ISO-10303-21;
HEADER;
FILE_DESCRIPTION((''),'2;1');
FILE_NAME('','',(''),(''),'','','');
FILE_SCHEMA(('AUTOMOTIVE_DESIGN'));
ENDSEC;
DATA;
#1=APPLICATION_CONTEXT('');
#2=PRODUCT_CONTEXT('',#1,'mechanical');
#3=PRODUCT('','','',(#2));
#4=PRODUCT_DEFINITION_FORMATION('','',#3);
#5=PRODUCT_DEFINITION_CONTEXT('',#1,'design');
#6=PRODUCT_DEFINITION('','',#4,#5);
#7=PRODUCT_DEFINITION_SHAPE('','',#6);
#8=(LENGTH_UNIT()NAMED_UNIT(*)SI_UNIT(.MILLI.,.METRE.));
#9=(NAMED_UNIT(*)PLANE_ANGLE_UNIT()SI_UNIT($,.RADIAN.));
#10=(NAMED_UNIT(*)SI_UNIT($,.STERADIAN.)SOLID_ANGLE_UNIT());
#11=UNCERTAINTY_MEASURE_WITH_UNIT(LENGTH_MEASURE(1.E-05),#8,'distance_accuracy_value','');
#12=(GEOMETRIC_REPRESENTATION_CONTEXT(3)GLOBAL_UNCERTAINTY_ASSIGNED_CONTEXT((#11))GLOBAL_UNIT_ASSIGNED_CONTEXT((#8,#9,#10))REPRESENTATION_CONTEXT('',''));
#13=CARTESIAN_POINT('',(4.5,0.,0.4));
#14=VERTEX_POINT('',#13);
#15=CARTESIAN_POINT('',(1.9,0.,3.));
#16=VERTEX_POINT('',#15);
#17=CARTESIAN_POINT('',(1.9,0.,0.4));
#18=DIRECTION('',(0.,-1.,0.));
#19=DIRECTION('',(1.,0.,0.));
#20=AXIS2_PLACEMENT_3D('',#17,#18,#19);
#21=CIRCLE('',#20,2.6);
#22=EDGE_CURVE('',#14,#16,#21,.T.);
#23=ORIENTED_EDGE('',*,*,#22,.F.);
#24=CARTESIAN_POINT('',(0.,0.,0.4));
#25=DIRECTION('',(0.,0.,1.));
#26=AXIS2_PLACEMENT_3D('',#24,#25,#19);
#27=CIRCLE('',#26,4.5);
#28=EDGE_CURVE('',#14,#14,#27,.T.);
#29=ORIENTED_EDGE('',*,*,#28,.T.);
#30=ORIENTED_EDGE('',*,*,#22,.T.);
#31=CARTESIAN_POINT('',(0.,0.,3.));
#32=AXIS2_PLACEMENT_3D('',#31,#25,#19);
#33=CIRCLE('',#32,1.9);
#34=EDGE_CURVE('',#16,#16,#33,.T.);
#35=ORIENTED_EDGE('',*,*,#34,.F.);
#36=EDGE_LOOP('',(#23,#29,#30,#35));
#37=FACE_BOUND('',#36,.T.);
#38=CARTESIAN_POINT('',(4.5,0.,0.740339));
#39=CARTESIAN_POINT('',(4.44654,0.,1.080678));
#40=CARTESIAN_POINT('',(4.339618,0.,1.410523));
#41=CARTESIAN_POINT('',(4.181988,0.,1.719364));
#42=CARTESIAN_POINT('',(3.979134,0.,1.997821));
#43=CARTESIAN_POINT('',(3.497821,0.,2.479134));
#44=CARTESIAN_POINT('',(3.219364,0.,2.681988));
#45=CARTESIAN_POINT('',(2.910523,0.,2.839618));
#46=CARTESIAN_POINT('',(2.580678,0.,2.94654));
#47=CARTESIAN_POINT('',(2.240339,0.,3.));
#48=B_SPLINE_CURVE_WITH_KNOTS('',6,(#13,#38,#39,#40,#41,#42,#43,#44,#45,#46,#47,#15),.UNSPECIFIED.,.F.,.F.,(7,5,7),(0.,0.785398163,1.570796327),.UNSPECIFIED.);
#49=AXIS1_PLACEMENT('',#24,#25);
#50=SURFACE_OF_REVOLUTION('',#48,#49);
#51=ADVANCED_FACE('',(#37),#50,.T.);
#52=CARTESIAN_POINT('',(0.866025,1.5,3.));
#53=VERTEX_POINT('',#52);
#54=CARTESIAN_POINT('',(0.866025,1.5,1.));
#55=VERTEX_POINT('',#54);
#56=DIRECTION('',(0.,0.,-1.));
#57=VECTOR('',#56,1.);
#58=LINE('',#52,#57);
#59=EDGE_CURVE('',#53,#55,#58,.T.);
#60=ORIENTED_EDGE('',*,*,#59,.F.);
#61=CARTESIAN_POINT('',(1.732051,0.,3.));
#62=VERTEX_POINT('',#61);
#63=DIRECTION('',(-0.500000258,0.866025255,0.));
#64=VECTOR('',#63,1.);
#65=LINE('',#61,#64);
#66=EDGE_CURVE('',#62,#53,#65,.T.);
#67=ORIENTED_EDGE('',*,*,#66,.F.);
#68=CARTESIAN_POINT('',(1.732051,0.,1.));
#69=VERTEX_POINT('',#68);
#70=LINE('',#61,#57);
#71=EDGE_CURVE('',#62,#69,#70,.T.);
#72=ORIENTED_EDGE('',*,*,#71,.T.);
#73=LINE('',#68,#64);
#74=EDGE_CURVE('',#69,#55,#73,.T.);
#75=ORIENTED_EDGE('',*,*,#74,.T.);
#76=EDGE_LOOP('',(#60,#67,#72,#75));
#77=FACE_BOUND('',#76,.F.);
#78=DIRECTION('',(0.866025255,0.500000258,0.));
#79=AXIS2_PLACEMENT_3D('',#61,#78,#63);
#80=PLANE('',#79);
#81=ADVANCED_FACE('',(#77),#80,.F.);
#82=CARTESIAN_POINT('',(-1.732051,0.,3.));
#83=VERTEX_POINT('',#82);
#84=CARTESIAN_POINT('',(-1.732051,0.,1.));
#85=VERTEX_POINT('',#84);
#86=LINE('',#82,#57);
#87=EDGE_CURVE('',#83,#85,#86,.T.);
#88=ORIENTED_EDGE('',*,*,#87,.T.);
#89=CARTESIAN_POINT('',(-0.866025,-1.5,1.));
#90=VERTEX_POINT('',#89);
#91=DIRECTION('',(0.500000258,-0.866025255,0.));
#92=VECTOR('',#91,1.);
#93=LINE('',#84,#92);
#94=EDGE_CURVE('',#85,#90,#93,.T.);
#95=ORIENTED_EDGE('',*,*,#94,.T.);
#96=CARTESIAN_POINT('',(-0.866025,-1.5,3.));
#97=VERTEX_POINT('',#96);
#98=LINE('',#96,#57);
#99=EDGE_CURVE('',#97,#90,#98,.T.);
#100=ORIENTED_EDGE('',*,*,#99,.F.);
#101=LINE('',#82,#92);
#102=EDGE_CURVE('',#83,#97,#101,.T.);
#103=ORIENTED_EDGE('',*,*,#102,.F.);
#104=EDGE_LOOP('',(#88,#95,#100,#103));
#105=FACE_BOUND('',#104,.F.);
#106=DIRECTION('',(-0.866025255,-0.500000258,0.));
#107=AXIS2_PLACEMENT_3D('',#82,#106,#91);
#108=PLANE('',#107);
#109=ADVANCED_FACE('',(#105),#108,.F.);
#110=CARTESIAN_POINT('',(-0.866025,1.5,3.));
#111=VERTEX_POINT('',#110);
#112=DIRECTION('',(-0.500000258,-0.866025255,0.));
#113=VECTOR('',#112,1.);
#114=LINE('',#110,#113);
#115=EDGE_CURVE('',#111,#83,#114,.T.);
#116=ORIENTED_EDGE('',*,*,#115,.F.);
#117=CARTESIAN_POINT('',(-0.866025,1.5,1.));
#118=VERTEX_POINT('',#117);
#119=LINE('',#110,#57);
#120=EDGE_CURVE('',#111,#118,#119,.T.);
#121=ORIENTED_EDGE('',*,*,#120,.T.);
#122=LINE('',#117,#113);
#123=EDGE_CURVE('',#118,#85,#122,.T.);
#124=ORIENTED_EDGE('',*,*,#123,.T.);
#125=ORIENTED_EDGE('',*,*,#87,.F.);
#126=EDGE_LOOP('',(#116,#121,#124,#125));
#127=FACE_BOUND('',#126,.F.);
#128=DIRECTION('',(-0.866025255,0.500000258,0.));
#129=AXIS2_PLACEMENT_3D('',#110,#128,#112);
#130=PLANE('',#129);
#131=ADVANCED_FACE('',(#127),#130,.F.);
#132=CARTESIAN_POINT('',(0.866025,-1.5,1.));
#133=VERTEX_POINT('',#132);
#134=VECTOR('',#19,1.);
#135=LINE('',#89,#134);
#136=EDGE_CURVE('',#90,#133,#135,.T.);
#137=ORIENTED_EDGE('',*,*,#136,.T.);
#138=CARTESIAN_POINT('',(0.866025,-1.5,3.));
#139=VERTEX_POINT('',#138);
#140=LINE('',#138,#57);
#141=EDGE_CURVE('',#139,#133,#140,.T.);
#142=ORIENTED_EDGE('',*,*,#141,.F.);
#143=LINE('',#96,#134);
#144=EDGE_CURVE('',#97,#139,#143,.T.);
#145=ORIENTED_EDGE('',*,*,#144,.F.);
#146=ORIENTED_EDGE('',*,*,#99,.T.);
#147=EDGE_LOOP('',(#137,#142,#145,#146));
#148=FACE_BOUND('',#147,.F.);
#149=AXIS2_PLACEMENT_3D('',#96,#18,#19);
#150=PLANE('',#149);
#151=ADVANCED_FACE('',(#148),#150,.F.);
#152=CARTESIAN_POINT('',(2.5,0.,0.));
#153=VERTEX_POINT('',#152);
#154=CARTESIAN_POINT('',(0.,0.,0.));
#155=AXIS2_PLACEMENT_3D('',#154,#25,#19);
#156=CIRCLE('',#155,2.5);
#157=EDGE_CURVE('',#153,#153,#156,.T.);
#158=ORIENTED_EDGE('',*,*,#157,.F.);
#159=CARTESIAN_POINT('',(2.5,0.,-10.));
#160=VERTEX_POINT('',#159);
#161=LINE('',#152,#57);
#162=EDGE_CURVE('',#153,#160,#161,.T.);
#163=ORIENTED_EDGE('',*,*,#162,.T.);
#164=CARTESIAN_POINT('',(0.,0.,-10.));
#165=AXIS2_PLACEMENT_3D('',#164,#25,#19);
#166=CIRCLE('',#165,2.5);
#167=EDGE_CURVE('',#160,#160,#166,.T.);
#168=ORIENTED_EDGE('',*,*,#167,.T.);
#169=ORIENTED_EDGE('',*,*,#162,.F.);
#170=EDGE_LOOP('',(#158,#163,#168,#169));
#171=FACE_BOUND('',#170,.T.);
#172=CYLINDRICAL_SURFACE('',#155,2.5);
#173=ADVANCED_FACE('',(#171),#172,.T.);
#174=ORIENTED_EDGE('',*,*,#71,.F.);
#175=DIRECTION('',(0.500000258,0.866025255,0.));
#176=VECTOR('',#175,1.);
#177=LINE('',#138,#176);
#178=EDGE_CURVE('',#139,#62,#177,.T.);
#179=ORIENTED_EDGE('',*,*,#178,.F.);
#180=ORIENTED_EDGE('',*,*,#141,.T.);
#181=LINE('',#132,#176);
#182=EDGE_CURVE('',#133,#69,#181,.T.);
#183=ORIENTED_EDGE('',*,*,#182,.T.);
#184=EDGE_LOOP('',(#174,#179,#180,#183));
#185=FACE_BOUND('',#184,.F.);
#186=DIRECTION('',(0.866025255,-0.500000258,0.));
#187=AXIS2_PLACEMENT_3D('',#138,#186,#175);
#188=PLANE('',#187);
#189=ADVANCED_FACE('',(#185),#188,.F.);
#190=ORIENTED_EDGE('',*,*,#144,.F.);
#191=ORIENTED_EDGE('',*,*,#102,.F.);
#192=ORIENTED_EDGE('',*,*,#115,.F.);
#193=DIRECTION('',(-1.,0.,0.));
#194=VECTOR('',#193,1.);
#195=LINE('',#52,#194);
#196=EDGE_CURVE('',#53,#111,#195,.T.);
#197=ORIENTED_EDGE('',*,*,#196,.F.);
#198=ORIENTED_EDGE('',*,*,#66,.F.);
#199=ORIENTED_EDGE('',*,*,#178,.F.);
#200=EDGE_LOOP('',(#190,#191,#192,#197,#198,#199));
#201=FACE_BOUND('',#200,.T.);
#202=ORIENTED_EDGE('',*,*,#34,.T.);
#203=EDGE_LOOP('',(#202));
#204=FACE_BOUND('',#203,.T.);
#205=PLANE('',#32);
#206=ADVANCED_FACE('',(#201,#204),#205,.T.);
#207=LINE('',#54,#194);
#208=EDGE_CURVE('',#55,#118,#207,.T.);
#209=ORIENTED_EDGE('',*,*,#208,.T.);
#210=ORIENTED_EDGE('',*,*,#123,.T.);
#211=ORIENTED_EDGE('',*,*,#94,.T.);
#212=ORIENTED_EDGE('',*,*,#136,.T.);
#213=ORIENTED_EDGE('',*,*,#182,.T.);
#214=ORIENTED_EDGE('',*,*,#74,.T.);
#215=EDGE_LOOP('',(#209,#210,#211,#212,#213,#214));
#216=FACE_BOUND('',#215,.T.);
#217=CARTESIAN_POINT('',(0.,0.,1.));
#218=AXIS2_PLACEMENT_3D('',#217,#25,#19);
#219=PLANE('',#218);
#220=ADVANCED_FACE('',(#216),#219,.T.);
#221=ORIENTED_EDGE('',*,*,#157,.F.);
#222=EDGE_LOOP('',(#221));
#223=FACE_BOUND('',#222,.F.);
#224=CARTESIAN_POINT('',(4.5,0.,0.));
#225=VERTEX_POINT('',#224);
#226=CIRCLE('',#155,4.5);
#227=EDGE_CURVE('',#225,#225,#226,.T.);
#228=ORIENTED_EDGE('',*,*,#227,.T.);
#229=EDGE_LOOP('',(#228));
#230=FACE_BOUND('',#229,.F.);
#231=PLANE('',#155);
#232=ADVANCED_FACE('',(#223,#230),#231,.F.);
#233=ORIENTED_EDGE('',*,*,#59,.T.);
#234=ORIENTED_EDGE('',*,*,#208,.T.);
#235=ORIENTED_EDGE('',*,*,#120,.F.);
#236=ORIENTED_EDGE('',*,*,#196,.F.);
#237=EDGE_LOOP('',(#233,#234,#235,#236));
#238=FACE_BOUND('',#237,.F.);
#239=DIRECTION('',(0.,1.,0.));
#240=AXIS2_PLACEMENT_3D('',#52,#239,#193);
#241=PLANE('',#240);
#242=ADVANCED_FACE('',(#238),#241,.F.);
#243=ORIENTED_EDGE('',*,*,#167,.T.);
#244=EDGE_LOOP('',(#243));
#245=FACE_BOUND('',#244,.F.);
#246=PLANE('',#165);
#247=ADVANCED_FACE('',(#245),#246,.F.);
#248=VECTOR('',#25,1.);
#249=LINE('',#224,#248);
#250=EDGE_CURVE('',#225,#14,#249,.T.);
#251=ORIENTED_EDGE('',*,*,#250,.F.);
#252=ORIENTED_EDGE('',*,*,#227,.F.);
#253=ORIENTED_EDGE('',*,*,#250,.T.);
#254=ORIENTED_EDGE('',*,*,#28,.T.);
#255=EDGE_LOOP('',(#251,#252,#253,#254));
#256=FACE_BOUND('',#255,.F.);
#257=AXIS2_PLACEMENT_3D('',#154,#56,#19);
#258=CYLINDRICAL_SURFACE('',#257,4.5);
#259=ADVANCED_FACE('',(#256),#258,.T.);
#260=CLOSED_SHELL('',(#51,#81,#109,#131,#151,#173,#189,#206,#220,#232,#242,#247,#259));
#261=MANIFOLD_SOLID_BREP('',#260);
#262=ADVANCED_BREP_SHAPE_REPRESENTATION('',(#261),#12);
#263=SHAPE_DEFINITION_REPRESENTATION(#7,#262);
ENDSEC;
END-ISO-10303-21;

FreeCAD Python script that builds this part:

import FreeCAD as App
import Part
import Sketcher
Q = App.Units.Quantity


def edges_at(feature, points):
    """Names of the edges that pass closest to the given points."""
    edges = feature.Shape.Edges
    near = lambda p: min(range(len(edges)), key=lambda i: edges[i].distToShape(Part.Vertex(*p))[0])
    return sorted({f"Edge{near(p) + 1}" for p in points})

doc = App.newDocument("Part")
body = doc.addObject("PartDesign::Body", "Body")

sketch1 = doc.addObject("Sketcher::SketchObject", "Sketch")
body.addObject(sketch1)
sketch1.AttachmentSupport = (doc.XY_Plane, [""])
sketch1.MapMode = "FlatFace"
sketch1.addGeometry(Part.Circle(App.Vector(0, 0, 0), App.Vector(0, 0, 1), 2.5), False)
sketch1.addConstraint([
    Sketcher.Constraint("Coincident", 0, 3, -1, 1),
    Sketcher.Constraint("Diameter", 0, Q("5 mm")),
])
pad1 = doc.addObject("PartDesign::Pad", "Pad")
body.addObject(pad1)
pad1.Profile = sketch1
pad1.Length = 10
pad1.Reversed = True

sketch2 = doc.addObject("Sketcher::SketchObject", "Sketch001")
body.addObject(sketch2)
sketch2.AttachmentSupport = (doc.XY_Plane, [""])
sketch2.MapMode = "FlatFace"
sketch2.addGeometry(Part.Circle(App.Vector(0, 0, 0), App.Vector(0, 0, 1), 4.5), False)
sketch2.addConstraint([
    Sketcher.Constraint("Coincident", 0, 3, -1, 1),
    Sketcher.Constraint("Diameter", 0, Q("9 mm")),
])
pad2 = doc.addObject("PartDesign::Pad", "Pad001")
body.addObject(pad2)
pad2.Profile = sketch2
pad2.Length = 3
doc.recompute()

fillet = doc.addObject("PartDesign::Fillet", "Fillet")
body.addObject(fillet)
fillet.Base = (pad2, edges_at(pad2, [(-4.5, 0, 3)]))
fillet.Radius = 2.6

sketch3 = doc.addObject("Sketcher::SketchObject", "Sketch002")
body.addObject(sketch3)
sketch3.AttachmentSupport = (doc.XY_Plane, [""])
sketch3.MapMode = "FlatFace"
sketch3.AttachmentOffset = App.Placement(App.Vector(0, 0, 3), App.Rotation())
sketch3.addGeometry([
    Part.LineSegment(App.Vector(-0.9, -1.5, 0), App.Vector(0.9, -1.5, 0)),
    Part.LineSegment(App.Vector(0.9, -1.5, 0), App.Vector(1.7, 0, 0)),
    Part.LineSegment(App.Vector(1.7, 0, 0), App.Vector(0.9, 1.5, 0)),
    Part.LineSegment(App.Vector(0.9, 1.5, 0), App.Vector(-0.9, 1.5, 0)),
    Part.LineSegment(App.Vector(-0.9, 1.5, 0), App.Vector(-1.7, 0, 0)),
    Part.LineSegment(App.Vector(-1.7, 0, 0), App.Vector(-0.9, -1.5, 0)),
], False)
sketch3.addConstraint([
    Sketcher.Constraint("Coincident", 0, 2, 1, 1),
    Sketcher.Constraint("Coincident", 1, 2, 2, 1),
    Sketcher.Constraint("Coincident", 2, 2, 3, 1),
    Sketcher.Constraint("Coincident", 3, 2, 4, 1),
    Sketcher.Constraint("Coincident", 4, 2, 5, 1),
    Sketcher.Constraint("Coincident", 5, 2, 0, 1),
    Sketcher.Constraint("Horizontal", 0),
    Sketcher.Constraint("Horizontal", 3),
    Sketcher.Constraint("Symmetric", 0, 2, 3, 2, -1, 1),
    Sketcher.Constraint("Symmetric", 1, 2, 4, 2, -1, 1),
    Sketcher.Constraint("PointOnObject", 1, 2, -1),
    Sketcher.Constraint("Parallel", 2, 5),
    Sketcher.Constraint("Vertical", 0, 2, 2, 2),
    Sketcher.Constraint("Angle", 1, Q("59.999983 deg")),
    Sketcher.Constraint("DistanceY", 0, 2, 2, 2, Q("3 mm")),
    Sketcher.Constraint("DistanceX", 0, 1, 0, 2, Q("1.73205 mm")),
])
pocket1 = doc.addObject("PartDesign::Pocket", "Pocket")
body.addObject(pocket1)
pocket1.Profile = sketch3
pocket1.Length = 2

doc.recompute()
